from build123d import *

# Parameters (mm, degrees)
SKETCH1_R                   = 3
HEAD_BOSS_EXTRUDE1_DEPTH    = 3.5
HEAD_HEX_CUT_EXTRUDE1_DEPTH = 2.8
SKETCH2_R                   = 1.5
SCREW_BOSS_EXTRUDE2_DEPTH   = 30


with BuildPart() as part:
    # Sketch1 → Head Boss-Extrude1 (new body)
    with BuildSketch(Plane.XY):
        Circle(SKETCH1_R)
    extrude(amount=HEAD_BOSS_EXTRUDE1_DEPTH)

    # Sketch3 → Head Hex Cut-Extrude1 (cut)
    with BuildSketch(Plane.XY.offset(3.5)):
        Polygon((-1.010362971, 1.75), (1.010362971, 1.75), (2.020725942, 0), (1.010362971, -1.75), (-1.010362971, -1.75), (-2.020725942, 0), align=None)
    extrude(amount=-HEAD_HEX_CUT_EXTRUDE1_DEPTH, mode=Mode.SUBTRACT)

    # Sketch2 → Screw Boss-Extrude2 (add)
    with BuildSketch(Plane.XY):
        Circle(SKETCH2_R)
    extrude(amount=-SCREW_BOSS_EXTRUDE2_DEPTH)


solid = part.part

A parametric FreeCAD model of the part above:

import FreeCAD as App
import Part
import Sketcher

V = App.Vector
Q = App.Units.Quantity


def add_polygon(sketch, points):
    """Adds a closed chain of lines whose ends are joined by coincident constraints."""
    first, n = sketch.GeometryCount, len(points)
    for a, b in zip(points, points[1:] + points[:1]):
        sketch.addGeometry(Part.LineSegment(App.Vector(*a, 0), App.Vector(*b, 0)), False)
    for i in range(n):
        sketch.addConstraint(Sketcher.Constraint("Coincident", first + i, 2, first + (i + 1) % n, 1))

doc = App.newDocument("Part")
body = doc.addObject("PartDesign::Body", "Body")

# Sketch on XY plane
sketch1 = body.newObject("Sketcher::SketchObject", "Sketch")
sketch1.AttachmentSupport = (doc.getObject("XY_Plane"), [""])
sketch1.MapMode = "FlatFace"
sketch1.addGeometry(Part.Circle(V(0, 0, 0), V(0, 0, 1), 3), False)
sketch1.addConstraint(Sketcher.Constraint("Coincident", 0, 3, -1, 1))
sketch1.addConstraint(Sketcher.Constraint("Diameter", 0, Q("6 mm")))
pad1 = body.newObject("PartDesign::Pad", "Pad")
pad1.Profile = sketch1
pad1.Length = 3.5

# Sketch on XY plane
sketch2 = body.newObject("Sketcher::SketchObject", "Sketch001")
sketch2.AttachmentSupport = (doc.getObject("XY_Plane"), [""])
sketch2.MapMode = "FlatFace"
sketch2.AttachmentOffset = App.Placement(V(0, 0, 3.5), App.Rotation())
add_polygon(sketch2, [(1.010363, 1.75), (-1.010363, 1.75), (-2.020726, 0), (-1.010363, -1.75), (1.010363, -1.75), (2.020726, 0)])  # lines 0-5
sketch2.addConstraint(Sketcher.Constraint("Horizontal", 0))
sketch2.addConstraint(Sketcher.Constraint("Horizontal", 3))
sketch2.addConstraint(Sketcher.Constraint("Symmetric", 0, 2, 3, 2, -1, 1))
sketch2.addConstraint(Sketcher.Constraint("Symmetric", 1, 2, 4, 2, -1, 1))
sketch2.addConstraint(Sketcher.Constraint("PointOnObject", 1, 2, -1))
sketch2.addConstraint(Sketcher.Constraint("Parallel", 2, 5))
sketch2.addConstraint(Sketcher.Constraint("Vertical", 0, 2, 2, 2))
sketch2.addConstraint(Sketcher.Constraint("Angle", 1, Q("-120 deg")))
sketch2.addConstraint(Sketcher.Constraint("DistanceY", 2, 2, 0, 2, Q("3.5 mm")))
sketch2.addConstraint(Sketcher.Constraint("DistanceX", 0, 2, 0, 1, Q("2.020726 mm")))
pocket1 = body.newObject("PartDesign::Pocket", "Pocket")
pocket1.Profile = sketch2
pocket1.Length = 2.8

# Sketch on XY plane
sketch3 = body.newObject("Sketcher::SketchObject", "Sketch002")
sketch3.AttachmentSupport = (doc.getObject("XY_Plane"), [""])
sketch3.MapMode = "FlatFace"
sketch3.addGeometry(Part.Circle(V(0, 0, 0), V(0, 0, 1), 1.5), False)
sketch3.addConstraint(Sketcher.Constraint("Coincident", 0, 3, -1, 1))
sketch3.addConstraint(Sketcher.Constraint("Diameter", 0, Q("3 mm")))
pad2 = body.newObject("PartDesign::Pad", "Pad001")
pad2.Profile = sketch3
pad2.Length = 30
pad2.Reversed = True

doc.recompute()
